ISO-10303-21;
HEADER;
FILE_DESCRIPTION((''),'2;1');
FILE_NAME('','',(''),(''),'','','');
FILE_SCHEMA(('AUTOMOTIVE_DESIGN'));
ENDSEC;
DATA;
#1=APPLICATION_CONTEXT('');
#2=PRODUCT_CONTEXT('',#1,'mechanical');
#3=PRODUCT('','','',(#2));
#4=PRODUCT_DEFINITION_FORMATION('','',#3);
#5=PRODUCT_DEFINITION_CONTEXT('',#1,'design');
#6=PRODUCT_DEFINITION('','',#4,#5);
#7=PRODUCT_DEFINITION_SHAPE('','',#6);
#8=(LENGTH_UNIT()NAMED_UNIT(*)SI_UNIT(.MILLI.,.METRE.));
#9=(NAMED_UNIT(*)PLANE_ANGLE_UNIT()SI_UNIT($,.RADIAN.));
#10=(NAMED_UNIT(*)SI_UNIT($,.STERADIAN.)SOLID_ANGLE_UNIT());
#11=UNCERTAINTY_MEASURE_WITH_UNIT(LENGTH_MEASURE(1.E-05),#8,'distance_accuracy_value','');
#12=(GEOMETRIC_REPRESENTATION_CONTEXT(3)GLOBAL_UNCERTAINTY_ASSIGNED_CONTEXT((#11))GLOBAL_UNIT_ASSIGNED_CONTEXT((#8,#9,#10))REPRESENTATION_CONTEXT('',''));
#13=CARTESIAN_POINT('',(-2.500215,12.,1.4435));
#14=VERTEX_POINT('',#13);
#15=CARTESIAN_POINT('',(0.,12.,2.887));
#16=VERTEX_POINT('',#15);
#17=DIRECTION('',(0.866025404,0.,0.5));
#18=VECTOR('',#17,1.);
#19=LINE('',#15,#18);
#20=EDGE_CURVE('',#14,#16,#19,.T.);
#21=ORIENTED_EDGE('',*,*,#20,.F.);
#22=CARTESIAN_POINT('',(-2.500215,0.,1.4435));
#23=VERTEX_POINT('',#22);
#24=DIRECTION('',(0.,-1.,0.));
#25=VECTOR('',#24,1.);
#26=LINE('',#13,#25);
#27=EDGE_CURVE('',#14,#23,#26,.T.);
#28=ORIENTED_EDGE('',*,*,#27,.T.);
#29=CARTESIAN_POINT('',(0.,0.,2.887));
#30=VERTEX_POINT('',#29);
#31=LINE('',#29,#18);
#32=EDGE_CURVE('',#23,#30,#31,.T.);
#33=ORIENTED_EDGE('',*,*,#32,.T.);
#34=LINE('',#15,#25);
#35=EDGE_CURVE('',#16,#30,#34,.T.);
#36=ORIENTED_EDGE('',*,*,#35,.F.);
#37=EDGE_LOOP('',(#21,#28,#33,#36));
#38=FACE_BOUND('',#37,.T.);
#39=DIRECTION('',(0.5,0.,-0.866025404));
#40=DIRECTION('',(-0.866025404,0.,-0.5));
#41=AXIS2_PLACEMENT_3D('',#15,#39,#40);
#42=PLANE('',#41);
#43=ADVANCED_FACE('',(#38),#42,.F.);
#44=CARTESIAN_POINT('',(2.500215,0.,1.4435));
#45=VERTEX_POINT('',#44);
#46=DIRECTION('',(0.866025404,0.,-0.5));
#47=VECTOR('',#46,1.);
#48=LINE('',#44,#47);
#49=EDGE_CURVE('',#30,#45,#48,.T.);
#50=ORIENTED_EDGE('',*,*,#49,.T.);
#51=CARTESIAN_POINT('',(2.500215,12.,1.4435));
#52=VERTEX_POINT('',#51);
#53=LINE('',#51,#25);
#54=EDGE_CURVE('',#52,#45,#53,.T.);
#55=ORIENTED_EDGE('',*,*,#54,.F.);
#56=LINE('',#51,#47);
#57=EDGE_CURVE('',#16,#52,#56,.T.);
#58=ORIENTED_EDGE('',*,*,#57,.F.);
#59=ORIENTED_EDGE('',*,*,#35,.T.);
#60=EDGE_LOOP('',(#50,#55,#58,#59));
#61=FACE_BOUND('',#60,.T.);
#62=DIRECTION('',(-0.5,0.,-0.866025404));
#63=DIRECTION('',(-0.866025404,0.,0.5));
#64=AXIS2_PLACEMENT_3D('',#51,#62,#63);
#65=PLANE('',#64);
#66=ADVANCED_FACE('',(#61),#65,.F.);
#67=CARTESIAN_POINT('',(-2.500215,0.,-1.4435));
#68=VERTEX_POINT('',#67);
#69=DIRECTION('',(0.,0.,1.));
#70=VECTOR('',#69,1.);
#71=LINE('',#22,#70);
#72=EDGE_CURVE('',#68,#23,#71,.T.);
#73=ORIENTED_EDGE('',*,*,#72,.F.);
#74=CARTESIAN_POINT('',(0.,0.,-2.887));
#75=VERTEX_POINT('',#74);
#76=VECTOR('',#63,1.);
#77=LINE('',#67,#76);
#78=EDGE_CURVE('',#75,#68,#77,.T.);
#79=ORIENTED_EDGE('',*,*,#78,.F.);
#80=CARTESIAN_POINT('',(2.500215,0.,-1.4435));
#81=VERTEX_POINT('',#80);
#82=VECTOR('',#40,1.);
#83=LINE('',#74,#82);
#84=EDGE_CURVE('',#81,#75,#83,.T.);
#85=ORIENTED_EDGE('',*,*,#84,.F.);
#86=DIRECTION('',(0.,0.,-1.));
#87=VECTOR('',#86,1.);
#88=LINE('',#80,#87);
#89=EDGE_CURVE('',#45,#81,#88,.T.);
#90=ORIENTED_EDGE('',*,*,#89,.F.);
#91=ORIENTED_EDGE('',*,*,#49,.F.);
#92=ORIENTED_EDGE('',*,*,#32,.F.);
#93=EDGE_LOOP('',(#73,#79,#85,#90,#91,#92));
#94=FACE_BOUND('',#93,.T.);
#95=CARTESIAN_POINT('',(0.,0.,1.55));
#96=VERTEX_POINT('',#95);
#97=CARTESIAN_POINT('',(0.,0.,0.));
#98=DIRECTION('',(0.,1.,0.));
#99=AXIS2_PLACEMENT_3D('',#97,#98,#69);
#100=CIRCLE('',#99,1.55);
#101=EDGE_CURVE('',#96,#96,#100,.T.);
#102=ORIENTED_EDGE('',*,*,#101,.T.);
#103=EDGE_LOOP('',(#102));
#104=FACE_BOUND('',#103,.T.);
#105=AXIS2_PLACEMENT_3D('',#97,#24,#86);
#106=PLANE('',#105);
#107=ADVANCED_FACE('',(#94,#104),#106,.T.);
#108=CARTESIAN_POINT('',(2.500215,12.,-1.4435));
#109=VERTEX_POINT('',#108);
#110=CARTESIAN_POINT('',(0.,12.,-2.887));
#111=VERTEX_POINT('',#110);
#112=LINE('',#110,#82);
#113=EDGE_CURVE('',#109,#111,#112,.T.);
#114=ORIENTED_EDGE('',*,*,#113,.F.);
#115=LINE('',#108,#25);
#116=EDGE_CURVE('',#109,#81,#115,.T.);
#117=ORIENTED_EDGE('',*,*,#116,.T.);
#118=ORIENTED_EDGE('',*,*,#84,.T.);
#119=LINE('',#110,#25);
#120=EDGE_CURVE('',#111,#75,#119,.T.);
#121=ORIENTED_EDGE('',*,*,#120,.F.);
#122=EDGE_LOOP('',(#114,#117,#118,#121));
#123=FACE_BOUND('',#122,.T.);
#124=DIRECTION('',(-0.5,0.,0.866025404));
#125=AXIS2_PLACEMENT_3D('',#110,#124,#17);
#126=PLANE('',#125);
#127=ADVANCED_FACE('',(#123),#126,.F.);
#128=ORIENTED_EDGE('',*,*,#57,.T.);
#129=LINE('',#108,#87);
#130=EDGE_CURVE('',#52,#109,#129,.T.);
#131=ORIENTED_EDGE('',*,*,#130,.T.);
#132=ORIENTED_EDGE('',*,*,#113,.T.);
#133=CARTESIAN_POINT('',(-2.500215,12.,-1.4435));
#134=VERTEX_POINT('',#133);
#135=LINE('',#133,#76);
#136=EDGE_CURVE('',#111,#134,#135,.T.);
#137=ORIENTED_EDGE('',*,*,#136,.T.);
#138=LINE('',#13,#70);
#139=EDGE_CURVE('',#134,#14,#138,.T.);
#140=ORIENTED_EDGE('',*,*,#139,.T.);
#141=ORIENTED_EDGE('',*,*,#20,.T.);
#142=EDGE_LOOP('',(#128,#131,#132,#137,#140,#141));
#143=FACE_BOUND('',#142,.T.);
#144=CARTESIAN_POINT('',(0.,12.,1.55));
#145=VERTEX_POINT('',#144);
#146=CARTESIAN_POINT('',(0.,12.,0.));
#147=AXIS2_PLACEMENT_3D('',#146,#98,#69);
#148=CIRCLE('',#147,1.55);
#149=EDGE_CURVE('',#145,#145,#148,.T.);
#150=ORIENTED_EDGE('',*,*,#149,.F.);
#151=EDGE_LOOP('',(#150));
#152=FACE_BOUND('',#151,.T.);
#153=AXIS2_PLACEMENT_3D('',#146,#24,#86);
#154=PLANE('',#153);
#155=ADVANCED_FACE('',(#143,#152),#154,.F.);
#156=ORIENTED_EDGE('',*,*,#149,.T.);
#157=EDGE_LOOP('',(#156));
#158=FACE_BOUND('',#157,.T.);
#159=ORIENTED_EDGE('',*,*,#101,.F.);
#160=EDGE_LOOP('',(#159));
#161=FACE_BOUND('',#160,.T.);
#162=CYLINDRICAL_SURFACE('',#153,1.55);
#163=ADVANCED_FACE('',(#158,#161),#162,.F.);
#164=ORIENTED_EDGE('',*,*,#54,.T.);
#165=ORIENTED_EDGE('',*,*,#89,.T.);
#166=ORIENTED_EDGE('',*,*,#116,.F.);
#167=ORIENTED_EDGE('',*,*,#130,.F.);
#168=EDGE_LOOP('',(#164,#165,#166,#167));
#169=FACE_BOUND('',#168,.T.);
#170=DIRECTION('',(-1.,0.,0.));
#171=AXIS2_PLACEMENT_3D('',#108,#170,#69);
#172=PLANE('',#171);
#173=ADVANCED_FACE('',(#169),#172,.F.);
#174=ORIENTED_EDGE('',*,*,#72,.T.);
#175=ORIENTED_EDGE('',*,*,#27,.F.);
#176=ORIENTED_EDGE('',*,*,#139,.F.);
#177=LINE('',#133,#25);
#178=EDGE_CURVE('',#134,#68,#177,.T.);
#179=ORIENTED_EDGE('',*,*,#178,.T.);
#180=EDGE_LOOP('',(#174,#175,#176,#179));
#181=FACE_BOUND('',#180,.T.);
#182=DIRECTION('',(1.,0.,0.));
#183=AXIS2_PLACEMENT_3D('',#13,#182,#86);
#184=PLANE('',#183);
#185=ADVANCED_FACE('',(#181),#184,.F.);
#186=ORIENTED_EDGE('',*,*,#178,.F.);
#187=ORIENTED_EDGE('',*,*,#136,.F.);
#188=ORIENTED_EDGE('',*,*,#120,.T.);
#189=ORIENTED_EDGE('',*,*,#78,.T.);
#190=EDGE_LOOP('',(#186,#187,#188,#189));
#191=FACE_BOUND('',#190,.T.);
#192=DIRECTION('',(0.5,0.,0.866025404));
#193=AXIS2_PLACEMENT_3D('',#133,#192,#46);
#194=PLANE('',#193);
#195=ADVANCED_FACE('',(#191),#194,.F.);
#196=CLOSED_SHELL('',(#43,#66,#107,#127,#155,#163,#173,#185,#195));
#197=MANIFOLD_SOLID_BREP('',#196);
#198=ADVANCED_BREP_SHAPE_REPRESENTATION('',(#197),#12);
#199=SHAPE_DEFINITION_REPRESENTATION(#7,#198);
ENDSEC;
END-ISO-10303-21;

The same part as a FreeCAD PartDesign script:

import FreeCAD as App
import Part
import Sketcher
from FreeCAD import Vector
Q = App.Units.Quantity


def add_polygon(sketch, points):
    """Adds a closed chain of lines whose ends are joined by coincident constraints."""
    first, n = sketch.GeometryCount, len(points)
    for a, b in zip(points, points[1:] + points[:1]):
        sketch.addGeometry(Part.LineSegment(App.Vector(*a, 0), App.Vector(*b, 0)), False)
    for i in range(n):
        sketch.addConstraint(Sketcher.Constraint("Coincident", first + i, 2, first + (i + 1) % n, 1))

doc = App.newDocument("Part")
params = doc.addObject("Spreadsheet::Sheet", "Params")
for row, (alias, value) in enumerate([
    ("sketch1_diameter", "3.1 mm"),
    ("pad1_length", "12 mm"),
], start=1):
    params.set(f"A{row}", alias)
    params.set(f"B{row}", "=" + value)
    params.setAlias(f"B{row}", alias)

body = doc.addObject("PartDesign::Body", "Body")

# Sketch on XZ plane
sketch1 = body.newObject("Sketcher::SketchObject", "Sketch")
sketch1.AttachmentSupport = (doc.getObject("XZ_Plane"), [""])
sketch1.MapMode = "FlatFace"
add_polygon(sketch1, [(2.5, -1.4), (0, -2.9), (-2.5, -1.4), (-2.5, 1.4), (0, 2.9), (2.5, 1.4)])  # lines 0-5
sketch1.addGeometry(Part.Circle(Vector(0, 0, 0), Vector(0, 0, 1), 1.6), False)  # 6
sketch1.addConstraint([
    Sketcher.Constraint("Vertical", 2),
    Sketcher.Constraint("Vertical", 5),
    Sketcher.Constraint("Coincident", 6, 3, -1, 1),
    Sketcher.Constraint("Symmetric", 0, 2, 3, 2, -1, 1),
    Sketcher.Constraint("Symmetric", 1, 2, 4, 2, -1, 1),
    Sketcher.Constraint("PointOnObject", 0, 2, -2),
    Sketcher.Constraint("Parallel", 0, 3),
    Sketcher.Constraint("Horizontal", 2, 2, 4, 2),
    Sketcher.Constraint("Diameter", 6, Q("3.1 mm")),
    Sketcher.Constraint("Angle", 0, Q("-150 deg")),
    Sketcher.Constraint("DistanceY", 2, 1, 2, 2, Q("2.887 mm")),
    Sketcher.Constraint("Distance", 0, Q("2.887 mm")),
])
sketch1.setExpression("Constraints[14]", "Params.sketch1_diameter")
pad1 = body.newObject("PartDesign::Pad", "Pad")
pad1.Profile = sketch1
pad1.setExpression("Length", "Params.pad1_length")
pad1.Reversed = True

doc.recompute()
